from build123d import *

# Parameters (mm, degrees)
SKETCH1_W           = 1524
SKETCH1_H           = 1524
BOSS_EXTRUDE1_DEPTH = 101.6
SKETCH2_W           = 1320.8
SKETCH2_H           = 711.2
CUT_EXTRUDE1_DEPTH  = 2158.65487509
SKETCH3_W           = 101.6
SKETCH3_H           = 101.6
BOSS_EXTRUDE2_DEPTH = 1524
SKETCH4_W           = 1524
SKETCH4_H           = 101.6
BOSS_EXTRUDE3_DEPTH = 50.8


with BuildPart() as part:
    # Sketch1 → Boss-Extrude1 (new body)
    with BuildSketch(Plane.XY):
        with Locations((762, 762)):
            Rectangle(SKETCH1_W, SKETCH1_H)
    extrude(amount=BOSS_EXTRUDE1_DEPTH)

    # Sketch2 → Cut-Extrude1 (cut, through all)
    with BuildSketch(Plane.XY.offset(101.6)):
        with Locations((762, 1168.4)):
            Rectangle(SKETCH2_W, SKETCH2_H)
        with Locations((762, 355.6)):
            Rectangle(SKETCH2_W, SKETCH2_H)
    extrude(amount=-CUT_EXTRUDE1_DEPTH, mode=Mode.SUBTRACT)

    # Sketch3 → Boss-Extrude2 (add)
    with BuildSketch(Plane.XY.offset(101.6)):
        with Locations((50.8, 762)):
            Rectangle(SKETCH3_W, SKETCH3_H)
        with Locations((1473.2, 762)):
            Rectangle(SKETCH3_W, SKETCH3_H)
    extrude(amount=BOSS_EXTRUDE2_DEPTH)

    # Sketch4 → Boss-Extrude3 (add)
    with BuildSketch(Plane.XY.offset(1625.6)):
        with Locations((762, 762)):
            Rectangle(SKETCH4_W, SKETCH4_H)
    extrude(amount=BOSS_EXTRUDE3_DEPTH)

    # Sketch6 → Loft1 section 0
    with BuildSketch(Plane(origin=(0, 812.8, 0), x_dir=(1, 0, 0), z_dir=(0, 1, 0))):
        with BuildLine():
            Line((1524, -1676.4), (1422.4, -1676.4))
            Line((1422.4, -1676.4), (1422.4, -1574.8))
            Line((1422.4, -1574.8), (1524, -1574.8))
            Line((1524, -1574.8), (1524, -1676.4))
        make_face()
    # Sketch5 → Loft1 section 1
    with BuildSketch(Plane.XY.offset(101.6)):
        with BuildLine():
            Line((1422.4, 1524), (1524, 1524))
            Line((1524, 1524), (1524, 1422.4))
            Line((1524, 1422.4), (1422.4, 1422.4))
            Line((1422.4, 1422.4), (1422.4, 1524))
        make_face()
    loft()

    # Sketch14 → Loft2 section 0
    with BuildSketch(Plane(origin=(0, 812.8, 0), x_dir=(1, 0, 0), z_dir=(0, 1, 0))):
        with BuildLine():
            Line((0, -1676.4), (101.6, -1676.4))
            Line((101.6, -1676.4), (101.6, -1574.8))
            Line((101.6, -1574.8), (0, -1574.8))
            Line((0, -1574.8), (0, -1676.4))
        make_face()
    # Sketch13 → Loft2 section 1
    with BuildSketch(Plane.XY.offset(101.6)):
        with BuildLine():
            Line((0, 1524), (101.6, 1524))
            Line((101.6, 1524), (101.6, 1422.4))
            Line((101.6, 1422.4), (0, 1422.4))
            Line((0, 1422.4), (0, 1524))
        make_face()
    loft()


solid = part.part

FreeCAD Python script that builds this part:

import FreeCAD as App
import Part
import Sketcher
Q = App.Units.Quantity


def add_polygon(sketch, points):
    """Adds a closed chain of lines whose ends are joined by coincident constraints."""
    first, n = sketch.GeometryCount, len(points)
    for a, b in zip(points, points[1:] + points[:1]):
        sketch.addGeometry(Part.LineSegment(App.Vector(*a, 0), App.Vector(*b, 0)), False)
    for i in range(n):
        sketch.addConstraint(Sketcher.Constraint("Coincident", first + i, 2, first + (i + 1) % n, 1))

doc = App.newDocument("Part")
params = doc.addObject("Spreadsheet::Sheet", "Params")
for row, (alias, value) in enumerate([
    ("sketch1_width", "60 in"),
    ("pad1_length", "4 in"),
    ("sketch2_width", "52 in"),
    ("sketch2_height", "28 in"),
    ("sketch3_width", "4 in"),
    ("pad2_length", "60 in"),
    ("sketch4_width", "60 in"),
    ("sketch4_height", "4 in"),
    ("pad3_length", "2 in"),
    ("sketch5_width", "4 in"),
    ("sketch6_width", "4 in"),
    ("sketch7_width", "4 in"),
    ("sketch8_width", "4 in"),
], start=1):
    params.set(f"A{row}", alias)
    params.set(f"B{row}", "=" + value)
    params.setAlias(f"B{row}", alias)

body = doc.addObject("PartDesign::Body", "Body")

# Sketch on XY plane
sketch1 = doc.addObject("Sketcher::SketchObject", "Sketch")
body.addObject(sketch1)
sketch1.AttachmentSupport = (doc.XY_Plane, [""])
sketch1.MapMode = "FlatFace"
add_polygon(sketch1, [(0, 1524), (0, 0), (1524, 0), (1524, 1524)])  # lines 0-3
sketch1.addConstraint([
    Sketcher.Constraint("Vertical", 0),
    Sketcher.Constraint("Horizontal", 1),
    Sketcher.Constraint("Vertical", 2),
    Sketcher.Constraint("Horizontal", 3),
    Sketcher.Constraint("Coincident", 0, 2, -1, 1),
    Sketcher.Constraint("Equal", 3, 0),
    Sketcher.Constraint("DistanceX", 1, 1, 1, 2, Q("60 in")),
])
sketch1.setExpression("Constraints[10]", "Params.sketch1_width")
pad1 = doc.addObject("PartDesign::Pad", "Pad")
body.addObject(pad1)
pad1.Profile = sketch1
pad1.setExpression("Length", "Params.pad1_length")

# Sketch on XY plane
sketch2 = doc.addObject("Sketcher::SketchObject", "Sketch001")
body.addObject(sketch2)
sketch2.AttachmentSupport = (doc.XY_Plane, [""])
sketch2.MapMode = "FlatFace"
sketch2.AttachmentOffset = App.Placement(App.Vector(0, 0, 4 * 25.4), App.Rotation())
add_polygon(sketch2, [(102, 1524), (102, 813), (1422, 813), (1422, 1524)])  # lines 0-3
add_polygon(sketch2, [(102, 711), (102, 0), (1422, 0), (1422, 711)])  # lines 4-7
sketch2.addConstraint([
    Sketcher.Constraint("Vertical", 0),
    Sketcher.Constraint("Horizontal", 1),
    Sketcher.Constraint("Vertical", 2),
    Sketcher.Constraint("Horizontal", 3),
    Sketcher.Constraint("Vertical", 4),
    Sketcher.Constraint("Horizontal", 5),
    Sketcher.Constraint("Vertical", 6),
    Sketcher.Constraint("Horizontal", 7),
    Sketcher.Constraint("PointOnObject", 4, 2, -1),
    Sketcher.Constraint("Vertical", 3, 2, 4, 2),
    Sketcher.Constraint("Vertical", 2, 2, 5, 2),
    Sketcher.Constraint("Equal", 2, 4),
    Sketcher.Constraint("DistanceX", 1, 1, 1, 2, Q("52 in")),
    Sketcher.Constraint("DistanceY", 0, 2, 0, 1, Q("28 in")),
    Sketcher.Constraint("DistanceX", -1, 1, 0, 2, Q("4 in")),
    Sketcher.Constraint("DistanceY", -1, 1, 0, 2, Q("32 in")),
])
sketch2.setExpression("Constraints[20]", "Params.sketch2_width")
sketch2.setExpression("Constraints[21]", "Params.sketch2_height")
pocket1 = doc.addObject("PartDesign::Pocket", "Pocket")
body.addObject(pocket1)
pocket1.Profile = sketch2
pocket1.Type = "ThroughAll"

# Sketch on XY plane
sketch3 = doc.addObject("Sketcher::SketchObject", "Sketch002")
body.addObject(sketch3)
sketch3.AttachmentSupport = (doc.XY_Plane, [""])
sketch3.MapMode = "FlatFace"
sketch3.AttachmentOffset = App.Placement(App.Vector(0, 0, 4 * 25.4), App.Rotation())
add_polygon(sketch3, [(0, 813), (0, 711), (102, 711), (102, 813)])  # lines 0-3
add_polygon(sketch3, [(1422, 813), (1422, 711), (1524, 711), (1524, 813)])  # lines 4-7
sketch3.addConstraint([
    Sketcher.Constraint("Vertical", 0),
    Sketcher.Constraint("Horizontal", 1),
    Sketcher.Constraint("Vertical", 2),
    Sketcher.Constraint("Horizontal", 3),
    Sketcher.Constraint("Vertical", 4),
    Sketcher.Constraint("Horizontal", 5),
    Sketcher.Constraint("Vertical", 6),
    Sketcher.Constraint("Horizontal", 7),
    Sketcher.Constraint("PointOnObject", 0, 2, -2),
    Sketcher.Constraint("Horizontal", 1, 2, 4, 2),
    Sketcher.Constraint("Horizontal", 3, 2, 6, 2),
    Sketcher.Constraint("Equal", 3, 5),
    Sketcher.Constraint("Equal", 7, 0),
    Sketcher.Constraint("DistanceX", 1, 1, 1, 2, Q("4 in")),
    Sketcher.Constraint("DistanceY", -1, 1, 0, 2, Q("28 in")),
    Sketcher.Constraint("DistanceX", -1, 1, 4, 2, Q("56 in")),
])
sketch3.setExpression("Constraints[21]", "Params.sketch3_width")
pad2 = doc.addObject("PartDesign::Pad", "Pad001")
body.addObject(pad2)
pad2.Profile = sketch3
pad2.setExpression("Length", "Params.pad2_length")

# Sketch on XY plane
sketch4 = doc.addObject("Sketcher::SketchObject", "Sketch003")
body.addObject(sketch4)
sketch4.AttachmentSupport = (doc.XY_Plane, [""])
sketch4.MapMode = "FlatFace"
sketch4.AttachmentOffset = App.Placement(App.Vector(0, 0, 64 * 25.4), App.Rotation())
add_polygon(sketch4, [(0, 813), (0, 711), (1524, 711), (1524, 813)])  # lines 0-3
sketch4.addConstraint([
    Sketcher.Constraint("Vertical", 0),
    Sketcher.Constraint("Horizontal", 1),
    Sketcher.Constraint("Vertical", 2),
    Sketcher.Constraint("Horizontal", 3),
    Sketcher.Constraint("PointOnObject", 0, 2, -2),
    Sketcher.Constraint("DistanceX", 1, 1, 1, 2, Q("60 in")),
    Sketcher.Constraint("DistanceY", 0, 2, 0, 1, Q("4 in")),
    Sketcher.Constraint("DistanceY", -1, 1, 0, 2, Q("28 in")),
])
sketch4.setExpression("Constraints[9]", "Params.sketch4_width")
sketch4.setExpression("Constraints[10]", "Params.sketch4_height")
pad3 = doc.addObject("PartDesign::Pad", "Pad002")
body.addObject(pad3)
pad3.Profile = sketch4
pad3.setExpression("Length", "Params.pad3_length")

# Sketch on XZ plane
sketch5 = doc.addObject("Sketcher::SketchObject", "Sketch004")
body.addObject(sketch5)
sketch5.AttachmentSupport = (doc.XZ_Plane, [""])
sketch5.MapMode = "FlatFace"
sketch5.AttachmentOffset = App.Placement(App.Vector(0, 0, -32 * 25.4), App.Rotation())
add_polygon(sketch5, [(1422, 1676), (1524, 1676), (1524, 1575), (1422, 1575)])  # lines 0-3
sketch5.addConstraint([
    Sketcher.Constraint("Horizontal", 0),
    Sketcher.Constraint("Vertical", 1),
    Sketcher.Constraint("Horizontal", 2),
    Sketcher.Constraint("Vertical", 3),
    Sketcher.Constraint("Equal", 2, 1),
    Sketcher.Constraint("DistanceX", 0, 1, 0, 2, Q("4 in")),
    Sketcher.Constraint("DistanceX", -1, 1, 0, 2, Q("60 in")),
    Sketcher.Constraint("DistanceY", -1, 1, 0, 2, Q("66 in")),
])
sketch5.setExpression("Constraints[9]", "Params.sketch5_width")

# Sketch on XY plane
sketch6 = doc.addObject("Sketcher::SketchObject", "Sketch005")
body.addObject(sketch6)
sketch6.AttachmentSupport = (doc.XY_Plane, [""])
sketch6.MapMode = "FlatFace"
sketch6.AttachmentOffset = App.Placement(App.Vector(0, 0, 4 * 25.4), App.Rotation())
add_polygon(sketch6, [(1524, 1524), (1422, 1524), (1422, 1422), (1524, 1422)])  # lines 0-3
sketch6.addConstraint([
    Sketcher.Constraint("Horizontal", 0),
    Sketcher.Constraint("Vertical", 1),
    Sketcher.Constraint("Horizontal", 2),
    Sketcher.Constraint("Vertical", 3),
    Sketcher.Constraint("Equal", 2, 1),
    Sketcher.Constraint("DistanceX", 0, 2, 0, 1, Q("4 in")),
    Sketcher.Constraint("DistanceX", -1, 1, 0, 2, Q("56 in")),
    Sketcher.Constraint("DistanceY", -1, 1, 0, 2, Q("60 in")),
])
sketch6.setExpression("Constraints[9]", "Params.sketch6_width")

additiveloft = doc.addObject("PartDesign::AdditiveLoft", "AdditiveLoft")
body.addObject(additiveloft)
additiveloft.Profile = sketch5
additiveloft.Sections = [sketch6]

# Sketch on XZ plane
sketch7 = doc.addObject("Sketcher::SketchObject", "Sketch006")
body.addObject(sketch7)
sketch7.AttachmentSupport = (doc.XZ_Plane, [""])
sketch7.MapMode = "FlatFace"
sketch7.AttachmentOffset = App.Placement(App.Vector(0, 0, -32 * 25.4), App.Rotation())
add_polygon(sketch7, [(0, 1676), (102, 1676), (102, 1575), (0, 1575)])  # lines 0-3
sketch7.addConstraint([
    Sketcher.Constraint("Horizontal", 0),
    Sketcher.Constraint("Vertical", 1),
    Sketcher.Constraint("Horizontal", 2),
    Sketcher.Constraint("Vertical", 3),
    Sketcher.Constraint("PointOnObject", 2, 2, -2),
    Sketcher.Constraint("Equal", 2, 1),
    Sketcher.Constraint("DistanceX", 0, 1, 0, 2, Q("4 in")),
    Sketcher.Constraint("DistanceY", -1, 1, 0, 2, Q("66 in")),
])
sketch7.setExpression("Constraints[10]", "Params.sketch7_width")

# Sketch on XY plane
sketch8 = doc.addObject("Sketcher::SketchObject", "Sketch007")
body.addObject(sketch8)
sketch8.AttachmentSupport = (doc.XY_Plane, [""])
sketch8.MapMode = "FlatFace"
sketch8.AttachmentOffset = App.Placement(App.Vector(0, 0, 4 * 25.4), App.Rotation())
add_polygon(sketch8, [(102, 1524), (0, 1524), (0, 1422), (102, 1422)])  # lines 0-3
sketch8.addConstraint([
    Sketcher.Constraint("Horizontal", 0),
    Sketcher.Constraint("Vertical", 1),
    Sketcher.Constraint("Horizontal", 2),
    Sketcher.Constraint("Vertical", 3),
    Sketcher.Constraint("PointOnObject", 0, 2, -2),
    Sketcher.Constraint("Equal", 2, 1),
    Sketcher.Constraint("DistanceX", 0, 2, 0, 1, Q("4 in")),
    Sketcher.Constraint("DistanceY", -1, 1, 0, 2, Q("60 in")),
])
sketch8.setExpression("Constraints[10]", "Params.sketch8_width")

additiveloft2 = doc.addObject("PartDesign::AdditiveLoft", "AdditiveLoft001")
body.addObject(additiveloft2)
additiveloft2.Profile = sketch7
additiveloft2.Sections = [sketch8]

doc.recompute()
